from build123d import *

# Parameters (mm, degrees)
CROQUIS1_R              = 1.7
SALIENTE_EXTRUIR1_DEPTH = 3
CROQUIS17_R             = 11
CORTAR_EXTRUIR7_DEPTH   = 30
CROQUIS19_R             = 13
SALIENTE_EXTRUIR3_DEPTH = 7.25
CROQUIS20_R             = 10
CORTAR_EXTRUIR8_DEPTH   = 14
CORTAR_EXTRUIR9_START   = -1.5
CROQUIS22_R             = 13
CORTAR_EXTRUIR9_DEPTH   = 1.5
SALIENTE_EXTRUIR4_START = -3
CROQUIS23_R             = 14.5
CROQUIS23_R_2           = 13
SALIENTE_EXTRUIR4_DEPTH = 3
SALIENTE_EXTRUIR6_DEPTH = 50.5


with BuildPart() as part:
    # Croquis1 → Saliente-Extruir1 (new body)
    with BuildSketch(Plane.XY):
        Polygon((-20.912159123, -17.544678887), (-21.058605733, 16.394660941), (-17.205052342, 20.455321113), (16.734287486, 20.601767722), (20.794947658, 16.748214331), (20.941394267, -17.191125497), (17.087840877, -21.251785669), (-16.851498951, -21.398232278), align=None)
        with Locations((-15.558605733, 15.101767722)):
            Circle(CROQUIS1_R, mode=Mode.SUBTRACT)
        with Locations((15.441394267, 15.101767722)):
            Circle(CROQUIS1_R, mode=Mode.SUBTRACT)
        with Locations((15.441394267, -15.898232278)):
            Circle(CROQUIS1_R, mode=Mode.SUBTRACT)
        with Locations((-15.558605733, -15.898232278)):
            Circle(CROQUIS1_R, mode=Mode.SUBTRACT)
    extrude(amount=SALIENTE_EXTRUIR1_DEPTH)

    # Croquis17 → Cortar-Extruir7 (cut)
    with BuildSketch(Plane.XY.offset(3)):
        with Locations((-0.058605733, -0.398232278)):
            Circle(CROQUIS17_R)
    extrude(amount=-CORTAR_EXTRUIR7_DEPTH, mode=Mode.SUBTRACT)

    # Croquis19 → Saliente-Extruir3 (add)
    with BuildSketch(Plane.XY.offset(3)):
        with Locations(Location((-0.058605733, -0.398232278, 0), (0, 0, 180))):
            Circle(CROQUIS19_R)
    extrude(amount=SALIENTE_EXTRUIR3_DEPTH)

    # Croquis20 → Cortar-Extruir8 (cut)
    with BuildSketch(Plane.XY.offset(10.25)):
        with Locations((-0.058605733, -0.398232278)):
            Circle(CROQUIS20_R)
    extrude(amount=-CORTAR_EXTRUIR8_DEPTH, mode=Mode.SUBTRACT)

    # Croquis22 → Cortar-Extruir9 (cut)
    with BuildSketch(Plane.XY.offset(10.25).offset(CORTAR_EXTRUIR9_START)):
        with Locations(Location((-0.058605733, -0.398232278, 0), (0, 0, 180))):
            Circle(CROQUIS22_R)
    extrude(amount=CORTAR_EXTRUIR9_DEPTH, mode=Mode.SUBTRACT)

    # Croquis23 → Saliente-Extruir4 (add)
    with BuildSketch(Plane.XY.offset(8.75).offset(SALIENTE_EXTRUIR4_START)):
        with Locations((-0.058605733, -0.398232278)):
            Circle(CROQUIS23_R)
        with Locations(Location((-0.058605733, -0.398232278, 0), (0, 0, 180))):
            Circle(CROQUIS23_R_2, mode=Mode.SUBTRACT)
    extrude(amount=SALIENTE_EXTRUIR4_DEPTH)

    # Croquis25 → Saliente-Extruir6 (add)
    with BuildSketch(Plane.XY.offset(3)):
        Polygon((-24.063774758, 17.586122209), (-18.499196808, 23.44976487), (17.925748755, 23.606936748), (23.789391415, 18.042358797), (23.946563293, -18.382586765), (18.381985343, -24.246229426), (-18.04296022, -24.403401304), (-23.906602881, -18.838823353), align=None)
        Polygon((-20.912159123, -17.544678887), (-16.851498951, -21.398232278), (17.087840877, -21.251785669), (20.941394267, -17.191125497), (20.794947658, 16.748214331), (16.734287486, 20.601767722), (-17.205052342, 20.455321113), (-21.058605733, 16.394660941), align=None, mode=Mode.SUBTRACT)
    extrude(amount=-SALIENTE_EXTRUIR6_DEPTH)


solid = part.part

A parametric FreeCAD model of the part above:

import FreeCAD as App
import Part
import Sketcher
Q = App.Units.Quantity


def add_polygon(sketch, points):
    """Adds a closed chain of lines whose ends are joined by coincident constraints."""
    first, n = sketch.GeometryCount, len(points)
    for a, b in zip(points, points[1:] + points[:1]):
        sketch.addGeometry(Part.LineSegment(App.Vector(*a, 0), App.Vector(*b, 0)), False)
    for i in range(n):
        sketch.addConstraint(Sketcher.Constraint("Coincident", first + i, 2, first + (i + 1) % n, 1))

doc = App.newDocument("Part")
params = doc.addObject("Spreadsheet::Sheet", "Params")
for row, (alias, value) in enumerate([
    ("sketch1_diameter", "3.4 mm"),
    ("pad1_length", "3 mm"),
    ("sketch2_diameter", "22 mm"),
    ("pocket1_length", "30 mm"),
    ("sketch3_diameter", "26 mm"),
    ("pad2_length", "7.25 mm"),
    ("sketch4_diameter", "20 mm"),
    ("pocket2_length", "14 mm"),
    ("sketch5_diameter", "26 mm"),
    ("pocket3_length", "1.5 mm"),
    ("sketch6_diameter", "29 mm"),
    ("sketch6_diameter2", "26 mm"),
    ("pad3_length", "3 mm"),
    ("pad4_length", "50.5 mm"),
], start=1):
    params.set(f"A{row}", alias)
    params.set(f"B{row}", "=" + value)
    params.setAlias(f"B{row}", alias)

body = doc.addObject("PartDesign::Body", "Body")

# Sketch on XY plane
sketch1 = body.newObject("Sketcher::SketchObject", "Sketch")
sketch1.AttachmentSupport = (doc.getObject("XY_Plane"), [""])
sketch1.MapMode = "FlatFace"
add_polygon(sketch1, [(-21.1, 16.4), (-20.9, -17.5), (-16.9, -21.4), (17.1, -21.3), (20.9, -17.2), (20.8, 16.7), (16.7, 20.6), (-17.2, 20.5)])  # lines 0-7
sketch1.addGeometry(Part.Circle(App.Vector(15.4, -15.9, 0), App.Vector(0, 0, 1), 1.7), False)  # 8
sketch1.addGeometry(Part.Circle(App.Vector(-15.6, -15.9, 0), App.Vector(0, 0, 1), 1.7), False)  # 9
sketch1.addGeometry(Part.Circle(App.Vector(15.4, 15.1, 0), App.Vector(0, 0, 1), 1.7), False)  # 10
sketch1.addGeometry(Part.Circle(App.Vector(-15.6, 15.1, 0), App.Vector(0, 0, 1), 1.7), False)  # 11
sketch1.addConstraint(Sketcher.Constraint("Equal", 8, 9))
sketch1.addConstraint(Sketcher.Constraint("Equal", 9, 10))
sketch1.addConstraint(Sketcher.Constraint("Equal", 10, 11))
sketch1.addConstraint(Sketcher.Constraint("Perpendicular", 0, 2))
sketch1.addConstraint(Sketcher.Constraint("Perpendicular", 1, 3))
sketch1.addConstraint(Sketcher.Constraint("Perpendicular", 2, 4))
sketch1.addConstraint(Sketcher.Constraint("Perpendicular", 3, 5))
sketch1.addConstraint(Sketcher.Constraint("Perpendicular", 4, 6))
sketch1.addConstraint(Sketcher.Constraint("Perpendicular", 5, 7))
sketch1.addConstraint(Sketcher.Constraint("Horizontal", 8, 3, 9, 3))
sketch1.addConstraint(Sketcher.Constraint("Horizontal", 10, 3, 11, 3))
sketch1.addConstraint(Sketcher.Constraint("Vertical", 8, 3, 10, 3))
sketch1.addConstraint(Sketcher.Constraint("Vertical", 9, 3, 11, 3))
sketch1.addConstraint(Sketcher.Constraint("Equal", 0, 2))
sketch1.addConstraint(Sketcher.Constraint("Equal", 1, 3))
sketch1.addConstraint(Sketcher.Constraint("Equal", 2, 4))
sketch1.addConstraint(Sketcher.Constraint("Equal", 3, 5))
sketch1.addConstraint(Sketcher.Constraint("Diameter", 8, Q("3.4 mm")))
sketch1.addConstraint(Sketcher.Constraint("DistanceX", 9, 3, 8, 3, Q("31 mm")))
sketch1.addConstraint(Sketcher.Constraint("DistanceY", 8, 3, 10, 3, Q("31 mm")))
sketch1.addConstraint(Sketcher.Constraint("DistanceX", 0, 2, 2, 2, Q("38 mm")))
sketch1.addConstraint(Sketcher.Constraint("DistanceY", 1, 2, 9, 3, Q("5.5 mm")))
sketch1.addConstraint(Sketcher.Constraint("DistanceX", 8, 3, 3, 2, Q("5.5 mm")))
sketch1.addConstraint(Sketcher.Constraint("DistanceY", 10, 3, 5, 2, Q("5.5 mm")))
sketch1.addConstraint(Sketcher.Constraint("DistanceX", 1, 2, -1, 1, Q("16.851499 mm")))
sketch1.addConstraint(Sketcher.Constraint("Distance", 1, Q("5.59811 mm")))
sketch1.addConstraint(Sketcher.Constraint("DistanceX", 0, 2, -1, 1, Q("20.912159 mm")))
sketch1.addConstraint(Sketcher.Constraint("DistanceY", 0, 2, -1, 1, Q("17.544679 mm")))
sketch1.setExpression("Constraints[25]", "Params.sketch1_diameter")
pad1 = body.newObject("PartDesign::Pad", "Pad")
pad1.Profile = sketch1
pad1.setExpression("Length", "Params.pad1_length")

# Sketch on XY plane
sketch2 = body.newObject("Sketcher::SketchObject", "Sketch001")
sketch2.AttachmentSupport = (doc.getObject("XY_Plane"), [""])
sketch2.MapMode = "FlatFace"
sketch2.AttachmentOffset = App.Placement(App.Vector(0, 0, 3), App.Rotation())
sketch2.addGeometry(Part.Circle(App.Vector(0, 0, 0), App.Vector(0, 0, 1), 11), False)
sketch2.addConstraint(Sketcher.Constraint("Diameter", 0, Q("22 mm")))
sketch2.addConstraint(Sketcher.Constraint("DistanceX", 0, 3, -1, 1, Q("0.058606 mm")))
sketch2.addConstraint(Sketcher.Constraint("DistanceY", 0, 3, -1, 1, Q("0.398232 mm")))
sketch2.setExpression("Constraints[0]", "Params.sketch2_diameter")
pocket1 = body.newObject("PartDesign::Pocket", "Pocket")
pocket1.Profile = sketch2
pocket1.setExpression("Length", "Params.pocket1_length")

# Sketch on XY plane
sketch3 = body.newObject("Sketcher::SketchObject", "Sketch002")
sketch3.AttachmentSupport = (doc.getObject("XY_Plane"), [""])
sketch3.MapMode = "FlatFace"
sketch3.AttachmentOffset = App.Placement(App.Vector(0, 0, 3), App.Rotation())
sketch3.addGeometry(Part.Circle(App.Vector(0, 0, 0), App.Vector(0, 0, 1), 13), False)
sketch3.addConstraint(Sketcher.Constraint("Diameter", 0, Q("26 mm")))
sketch3.addConstraint(Sketcher.Constraint("DistanceX", 0, 3, -1, 1, Q("0.058606 mm")))
sketch3.addConstraint(Sketcher.Constraint("DistanceY", 0, 3, -1, 1, Q("0.398232 mm")))
sketch3.setExpression("Constraints[0]", "Params.sketch3_diameter")
pad2 = body.newObject("PartDesign::Pad", "Pad001")
pad2.Profile = sketch3
pad2.setExpression("Length", "Params.pad2_length")

# Sketch on XY plane
sketch4 = body.newObject("Sketcher::SketchObject", "Sketch003")
sketch4.AttachmentSupport = (doc.getObject("XY_Plane"), [""])
sketch4.MapMode = "FlatFace"
sketch4.AttachmentOffset = App.Placement(App.Vector(0, 0, 10.25), App.Rotation())
sketch4.addGeometry(Part.Circle(App.Vector(0, 0, 0), App.Vector(0, 0, 1), 10), False)
sketch4.addConstraint(Sketcher.Constraint("Diameter", 0, Q("20 mm")))
sketch4.addConstraint(Sketcher.Constraint("DistanceX", 0, 3, -1, 1, Q("0.058606 mm")))
sketch4.addConstraint(Sketcher.Constraint("DistanceY", 0, 3, -1, 1, Q("0.398232 mm")))
sketch4.setExpression("Constraints[0]", "Params.sketch4_diameter")
pocket2 = body.newObject("PartDesign::Pocket", "Pocket001")
pocket2.Profile = sketch4
pocket2.setExpression("Length", "Params.pocket2_length")

# Sketch on XY plane
sketch5 = body.newObject("Sketcher::SketchObject", "Sketch004")
sketch5.AttachmentSupport = (doc.getObject("XY_Plane"), [""])
sketch5.MapMode = "FlatFace"
sketch5.AttachmentOffset = App.Placement(App.Vector(0, 0, 8.75), App.Rotation())
sketch5.addGeometry(Part.Circle(App.Vector(0, 0, 0), App.Vector(0, 0, 1), 13), False)
sketch5.addConstraint(Sketcher.Constraint("Diameter", 0, Q("26 mm")))
sketch5.addConstraint(Sketcher.Constraint("DistanceX", 0, 3, -1, 1, Q("0.058606 mm")))
sketch5.addConstraint(Sketcher.Constraint("DistanceY", 0, 3, -1, 1, Q("0.398232 mm")))
sketch5.setExpression("Constraints[0]", "Params.sketch5_diameter")
pocket3 = body.newObject("PartDesign::Pocket", "Pocket002")
pocket3.Profile = sketch5
pocket3.setExpression("Length", "Params.pocket3_length")
pocket3.Reversed = True

# Sketch on XY plane
sketch6 = body.newObject("Sketcher::SketchObject", "Sketch005")
sketch6.AttachmentSupport = (doc.getObject("XY_Plane"), [""])
sketch6.MapMode = "FlatFace"
sketch6.AttachmentOffset = App.Placement(App.Vector(0, 0, 5.75), App.Rotation())
sketch6.addGeometry(Part.Circle(App.Vector(0, 0, 0), App.Vector(0, 0, 1), 14), False)
sketch6.addGeometry(Part.Circle(App.Vector(0, 0, 0), App.Vector(0, 0, 1), 13), False)
sketch6.addConstraint(Sketcher.Constraint("Coincident", 1, 3, 0, 3))
sketch6.addConstraint(Sketcher.Constraint("Diameter", 0, Q("29 mm")))
sketch6.addConstraint(Sketcher.Constraint("Diameter", 1, Q("26 mm")))
sketch6.addConstraint(Sketcher.Constraint("DistanceX", 0, 3, -1, 1, Q("0.058606 mm")))
sketch6.addConstraint(Sketcher.Constraint("DistanceY", 0, 3, -1, 1, Q("0.398232 mm")))
sketch6.setExpression("Constraints[1]", "Params.sketch6_diameter")
sketch6.setExpression("Constraints[2]", "Params.sketch6_diameter2")
pad3 = body.newObject("PartDesign::Pad", "Pad002")
pad3.Profile = sketch6
pad3.setExpression("Length", "Params.pad3_length")

# Sketch on XY plane
sketch7 = body.newObject("Sketcher::SketchObject", "Sketch006")
sketch7.AttachmentSupport = (doc.getObject("XY_Plane"), [""])
sketch7.MapMode = "FlatFace"
sketch7.AttachmentOffset = App.Placement(App.Vector(0, 0, 3), App.Rotation())
add_polygon(sketch7, [(-18, 23), (-24, 18), (-24, -19), (-18, -24), (18, -24), (24, -18), (24, 18), (18, 24)])  # lines 0-7
add_polygon(sketch7, [(-21, -18), (-21, 16), (-17, 20), (17, 21), (21, 17), (21, -17), (17, -21), (-17, -21)])  # lines 8-15
sketch7.addConstraint(Sketcher.Constraint("Perpendicular", 0, 2))
sketch7.addConstraint(Sketcher.Constraint("Perpendicular", 1, 3))
sketch7.addConstraint(Sketcher.Constraint("Perpendicular", 2, 4))
sketch7.addConstraint(Sketcher.Constraint("Perpendicular", 3, 5))
sketch7.addConstraint(Sketcher.Constraint("Perpendicular", 4, 6))
sketch7.addConstraint(Sketcher.Constraint("Perpendicular", 5, 7))
sketch7.addConstraint(Sketcher.Constraint("Perpendicular", 7, 8))
sketch7.addConstraint(Sketcher.Constraint("Perpendicular", 6, 9))
sketch7.addConstraint(Sketcher.Constraint("Perpendicular", 8, 10))
sketch7.addConstraint(Sketcher.Constraint("Perpendicular", 9, 11))
sketch7.addConstraint(Sketcher.Constraint("Perpendicular", 10, 12))
sketch7.addConstraint(Sketcher.Constraint("Perpendicular", 11, 13))
sketch7.addConstraint(Sketcher.Constraint("Perpendicular", 12, 14))
sketch7.addConstraint(Sketcher.Constraint("Perpendicular", 13, 15))
sketch7.addConstraint(Sketcher.Constraint("Equal", 0, 2))
sketch7.addConstraint(Sketcher.Constraint("Equal", 1, 3))
sketch7.addConstraint(Sketcher.Constraint("Equal", 2, 4))
sketch7.addConstraint(Sketcher.Constraint("Equal", 3, 5))
sketch7.addConstraint(Sketcher.Constraint("Equal", 8, 10))
sketch7.addConstraint(Sketcher.Constraint("Equal", 9, 11))
sketch7.addConstraint(Sketcher.Constraint("Equal", 10, 12))
sketch7.addConstraint(Sketcher.Constraint("Equal", 11, 13))
sketch7.addConstraint(Sketcher.Constraint("DistanceX", 9, 2, 11, 2, Q("38 mm")))
sketch7.addConstraint(Sketcher.Constraint("DistanceY", 2, 2, -1, 1, Q("24.403401 mm")))
sketch7.addConstraint(Sketcher.Constraint("DistanceX", 14, 2, -1, 1, Q("16.851499 mm")))
sketch7.addConstraint(Sketcher.Constraint("DistanceY", 0, 2, 9, 2, Q("2.869199 mm")))
sketch7.addConstraint(Sketcher.Constraint("DistanceX", 9, 2, 6, 2, Q("35.130801 mm")))
sketch7.addConstraint(Sketcher.Constraint("DistanceY", 4, 2, 11, 2, Q("35.130801 mm")))
sketch7.addConstraint(Sketcher.Constraint("Distance", 0, Q("8.083739 mm")))
sketch7.addConstraint(Sketcher.Constraint("Distance", 9, Q("5.59811 mm")))
sketch7.addConstraint(Sketcher.Constraint("DistanceX", 2, 2, -1, 1, Q("18.04296 mm")))
sketch7.addConstraint(Sketcher.Constraint("DistanceY", 3, 2, -1, 1, Q("24.246229 mm")))
pad4 = body.newObject("PartDesign::Pad", "Pad003")
pad4.Profile = sketch7
pad4.setExpression("Length", "Params.pad4_length")
pad4.Reversed = True

doc.recompute()
